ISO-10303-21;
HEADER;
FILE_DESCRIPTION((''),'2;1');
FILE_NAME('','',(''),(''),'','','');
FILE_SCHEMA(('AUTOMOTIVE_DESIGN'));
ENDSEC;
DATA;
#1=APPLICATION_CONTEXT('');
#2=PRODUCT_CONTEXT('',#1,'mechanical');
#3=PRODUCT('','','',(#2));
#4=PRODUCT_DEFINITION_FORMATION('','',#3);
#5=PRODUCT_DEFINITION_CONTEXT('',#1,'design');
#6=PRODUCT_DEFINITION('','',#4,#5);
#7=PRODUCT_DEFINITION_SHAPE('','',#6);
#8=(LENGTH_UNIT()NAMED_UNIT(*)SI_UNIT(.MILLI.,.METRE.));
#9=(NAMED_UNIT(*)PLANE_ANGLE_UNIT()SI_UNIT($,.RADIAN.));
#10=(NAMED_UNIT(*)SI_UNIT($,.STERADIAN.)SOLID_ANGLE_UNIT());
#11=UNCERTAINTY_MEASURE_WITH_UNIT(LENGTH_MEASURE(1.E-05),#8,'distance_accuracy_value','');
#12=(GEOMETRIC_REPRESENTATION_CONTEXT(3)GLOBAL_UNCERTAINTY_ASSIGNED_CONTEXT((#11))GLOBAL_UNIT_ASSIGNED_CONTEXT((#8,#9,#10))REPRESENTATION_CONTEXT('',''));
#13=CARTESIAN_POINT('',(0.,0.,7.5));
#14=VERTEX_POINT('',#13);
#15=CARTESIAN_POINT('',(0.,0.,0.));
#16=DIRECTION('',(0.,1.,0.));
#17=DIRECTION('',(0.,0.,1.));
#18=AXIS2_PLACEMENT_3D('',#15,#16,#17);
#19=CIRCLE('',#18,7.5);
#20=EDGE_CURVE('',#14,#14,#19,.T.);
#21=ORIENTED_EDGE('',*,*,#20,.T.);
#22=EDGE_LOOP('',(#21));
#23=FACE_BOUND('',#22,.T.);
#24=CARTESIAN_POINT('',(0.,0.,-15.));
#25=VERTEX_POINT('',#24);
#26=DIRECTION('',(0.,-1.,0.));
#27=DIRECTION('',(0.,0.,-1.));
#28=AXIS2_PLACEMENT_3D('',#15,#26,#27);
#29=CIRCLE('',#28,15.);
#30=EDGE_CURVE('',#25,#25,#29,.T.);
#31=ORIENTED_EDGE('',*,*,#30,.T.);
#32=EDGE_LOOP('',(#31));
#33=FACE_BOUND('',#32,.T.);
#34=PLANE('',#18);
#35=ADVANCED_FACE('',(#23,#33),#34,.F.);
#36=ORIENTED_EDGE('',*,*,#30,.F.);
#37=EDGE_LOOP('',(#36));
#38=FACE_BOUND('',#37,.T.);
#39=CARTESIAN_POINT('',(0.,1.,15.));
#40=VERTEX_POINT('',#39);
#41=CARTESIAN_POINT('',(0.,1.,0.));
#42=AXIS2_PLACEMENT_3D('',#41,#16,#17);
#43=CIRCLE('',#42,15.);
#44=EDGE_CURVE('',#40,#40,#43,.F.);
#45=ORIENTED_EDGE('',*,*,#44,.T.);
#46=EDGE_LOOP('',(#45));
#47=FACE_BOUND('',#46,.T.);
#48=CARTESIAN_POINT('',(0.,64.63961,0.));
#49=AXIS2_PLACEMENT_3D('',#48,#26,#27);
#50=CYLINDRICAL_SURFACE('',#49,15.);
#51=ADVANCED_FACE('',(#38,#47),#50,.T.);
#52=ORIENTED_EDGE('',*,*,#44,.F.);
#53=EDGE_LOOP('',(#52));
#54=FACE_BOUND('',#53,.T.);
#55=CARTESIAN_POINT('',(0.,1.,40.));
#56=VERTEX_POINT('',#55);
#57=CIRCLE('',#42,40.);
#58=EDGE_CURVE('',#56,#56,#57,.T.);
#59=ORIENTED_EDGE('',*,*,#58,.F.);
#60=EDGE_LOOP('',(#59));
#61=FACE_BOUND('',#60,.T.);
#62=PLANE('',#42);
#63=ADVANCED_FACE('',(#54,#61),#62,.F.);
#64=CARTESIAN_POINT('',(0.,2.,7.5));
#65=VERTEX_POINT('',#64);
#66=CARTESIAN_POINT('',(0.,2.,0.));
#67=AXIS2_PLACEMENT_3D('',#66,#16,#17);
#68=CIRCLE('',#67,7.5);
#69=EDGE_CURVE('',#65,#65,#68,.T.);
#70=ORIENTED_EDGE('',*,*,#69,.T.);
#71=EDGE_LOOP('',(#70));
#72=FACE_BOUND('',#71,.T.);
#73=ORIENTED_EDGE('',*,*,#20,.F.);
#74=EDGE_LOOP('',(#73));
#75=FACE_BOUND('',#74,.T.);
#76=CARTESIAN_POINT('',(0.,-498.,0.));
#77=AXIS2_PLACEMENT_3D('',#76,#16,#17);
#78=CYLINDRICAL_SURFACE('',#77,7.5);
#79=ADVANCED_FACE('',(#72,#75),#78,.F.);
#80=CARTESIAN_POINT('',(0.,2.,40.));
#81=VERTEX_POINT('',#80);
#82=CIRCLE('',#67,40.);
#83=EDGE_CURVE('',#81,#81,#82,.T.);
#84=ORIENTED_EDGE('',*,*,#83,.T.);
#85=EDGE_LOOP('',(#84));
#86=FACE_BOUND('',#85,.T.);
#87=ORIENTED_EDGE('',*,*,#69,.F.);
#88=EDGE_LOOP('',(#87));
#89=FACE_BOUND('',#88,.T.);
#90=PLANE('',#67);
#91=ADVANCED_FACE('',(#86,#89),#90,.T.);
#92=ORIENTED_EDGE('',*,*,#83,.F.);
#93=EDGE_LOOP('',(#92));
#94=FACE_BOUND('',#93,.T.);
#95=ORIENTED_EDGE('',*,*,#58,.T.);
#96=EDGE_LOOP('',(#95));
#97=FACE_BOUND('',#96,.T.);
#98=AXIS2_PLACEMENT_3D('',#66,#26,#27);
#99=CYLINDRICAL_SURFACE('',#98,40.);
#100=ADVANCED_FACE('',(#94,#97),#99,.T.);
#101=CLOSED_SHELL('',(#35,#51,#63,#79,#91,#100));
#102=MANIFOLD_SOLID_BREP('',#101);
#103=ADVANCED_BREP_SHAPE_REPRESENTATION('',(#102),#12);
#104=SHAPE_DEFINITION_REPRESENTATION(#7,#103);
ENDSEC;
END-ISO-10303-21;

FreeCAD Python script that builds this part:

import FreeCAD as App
import Part
import Sketcher

V = App.Vector

doc = App.newDocument("Part")
body = doc.addObject("PartDesign::Body", "Body")

sketch1 = body.newObject("Sketcher::SketchObject", "Sketch")
sketch1.AttachmentSupport = (doc.getObject("XZ_Plane"), [""])
sketch1.MapMode = "FlatFace"
sketch1.addGeometry(Part.Circle(V(0, 0, 0), V(0, 0, 1), 22), False)
sketch1.addConstraint([
    Sketcher.Constraint("Coincident", 0, 3, -1, 1),
    Sketcher.Constraint("Diameter", 0, 45.0),
])
pad1 = body.newObject("PartDesign::Pad", "Pad")
pad1.Profile = sketch1
pad1.Length = 1
pad1.Reversed = True

sketch2 = body.newObject("Sketcher::SketchObject", "Sketch001")
sketch2.AttachmentSupport = (doc.getObject("XZ_Plane"), [""])
sketch2.MapMode = "FlatFace"
sketch2.AttachmentOffset = App.Placement(V(0, 0, -1), App.Rotation())
sketch2.addGeometry(Part.Circle(V(0, 0, 0), V(0, 0, 1), 40), False)
sketch2.addConstraint([
    Sketcher.Constraint("Coincident", 0, 3, -1, 1),
    Sketcher.Constraint("Diameter", 0, 80.0),
])
pad2 = body.newObject("PartDesign::Pad", "Pad001")
pad2.Profile = sketch2
pad2.Length = 1
pad2.Reversed = True

sketch3 = body.newObject("Sketcher::SketchObject", "Sketch002")
sketch3.AttachmentSupport = (doc.getObject("XZ_Plane"), [""])
sketch3.MapMode = "FlatFace"
sketch3.AttachmentOffset = App.Placement(V(0, 0, -2), App.Rotation())
sketch3.addGeometry(Part.Circle(V(0, 0, 0), V(0, 0, 1), 8), False)
sketch3.addConstraint([
    Sketcher.Constraint("Coincident", 0, 3, -1, 1),
    Sketcher.Constraint("Diameter", 0, 15.0),
])
pocket1 = body.newObject("PartDesign::Pocket", "Pocket")
pocket1.Profile = sketch3
pocket1.Length = 500
pocket1.Reversed = True

sketch4 = body.newObject("Sketcher::SketchObject", "Sketch003")
sketch4.AttachmentSupport = (doc.getObject("XZ_Plane"), [""])
sketch4.MapMode = "FlatFace"
sketch4.addGeometry([
    Part.Circle(V(0, 0, 0), V(0, 0, 1), 22),
    Part.Circle(V(0, 0, 0), V(0, 0, 1), 15),
], False)
sketch4.addConstraint([
    Sketcher.Constraint("Coincident", 0, 3, -1, 1),
    Sketcher.Constraint("Coincident", 1, 3, -1, 1),
    Sketcher.Constraint("Diameter", 0, 45.0),
    Sketcher.Constraint("Diameter", 1, 30.0),
])
pocket2 = body.newObject("PartDesign::Pocket", "Pocket001")
pocket2.Profile = sketch4
pocket2.Length = 1

doc.recompute()
